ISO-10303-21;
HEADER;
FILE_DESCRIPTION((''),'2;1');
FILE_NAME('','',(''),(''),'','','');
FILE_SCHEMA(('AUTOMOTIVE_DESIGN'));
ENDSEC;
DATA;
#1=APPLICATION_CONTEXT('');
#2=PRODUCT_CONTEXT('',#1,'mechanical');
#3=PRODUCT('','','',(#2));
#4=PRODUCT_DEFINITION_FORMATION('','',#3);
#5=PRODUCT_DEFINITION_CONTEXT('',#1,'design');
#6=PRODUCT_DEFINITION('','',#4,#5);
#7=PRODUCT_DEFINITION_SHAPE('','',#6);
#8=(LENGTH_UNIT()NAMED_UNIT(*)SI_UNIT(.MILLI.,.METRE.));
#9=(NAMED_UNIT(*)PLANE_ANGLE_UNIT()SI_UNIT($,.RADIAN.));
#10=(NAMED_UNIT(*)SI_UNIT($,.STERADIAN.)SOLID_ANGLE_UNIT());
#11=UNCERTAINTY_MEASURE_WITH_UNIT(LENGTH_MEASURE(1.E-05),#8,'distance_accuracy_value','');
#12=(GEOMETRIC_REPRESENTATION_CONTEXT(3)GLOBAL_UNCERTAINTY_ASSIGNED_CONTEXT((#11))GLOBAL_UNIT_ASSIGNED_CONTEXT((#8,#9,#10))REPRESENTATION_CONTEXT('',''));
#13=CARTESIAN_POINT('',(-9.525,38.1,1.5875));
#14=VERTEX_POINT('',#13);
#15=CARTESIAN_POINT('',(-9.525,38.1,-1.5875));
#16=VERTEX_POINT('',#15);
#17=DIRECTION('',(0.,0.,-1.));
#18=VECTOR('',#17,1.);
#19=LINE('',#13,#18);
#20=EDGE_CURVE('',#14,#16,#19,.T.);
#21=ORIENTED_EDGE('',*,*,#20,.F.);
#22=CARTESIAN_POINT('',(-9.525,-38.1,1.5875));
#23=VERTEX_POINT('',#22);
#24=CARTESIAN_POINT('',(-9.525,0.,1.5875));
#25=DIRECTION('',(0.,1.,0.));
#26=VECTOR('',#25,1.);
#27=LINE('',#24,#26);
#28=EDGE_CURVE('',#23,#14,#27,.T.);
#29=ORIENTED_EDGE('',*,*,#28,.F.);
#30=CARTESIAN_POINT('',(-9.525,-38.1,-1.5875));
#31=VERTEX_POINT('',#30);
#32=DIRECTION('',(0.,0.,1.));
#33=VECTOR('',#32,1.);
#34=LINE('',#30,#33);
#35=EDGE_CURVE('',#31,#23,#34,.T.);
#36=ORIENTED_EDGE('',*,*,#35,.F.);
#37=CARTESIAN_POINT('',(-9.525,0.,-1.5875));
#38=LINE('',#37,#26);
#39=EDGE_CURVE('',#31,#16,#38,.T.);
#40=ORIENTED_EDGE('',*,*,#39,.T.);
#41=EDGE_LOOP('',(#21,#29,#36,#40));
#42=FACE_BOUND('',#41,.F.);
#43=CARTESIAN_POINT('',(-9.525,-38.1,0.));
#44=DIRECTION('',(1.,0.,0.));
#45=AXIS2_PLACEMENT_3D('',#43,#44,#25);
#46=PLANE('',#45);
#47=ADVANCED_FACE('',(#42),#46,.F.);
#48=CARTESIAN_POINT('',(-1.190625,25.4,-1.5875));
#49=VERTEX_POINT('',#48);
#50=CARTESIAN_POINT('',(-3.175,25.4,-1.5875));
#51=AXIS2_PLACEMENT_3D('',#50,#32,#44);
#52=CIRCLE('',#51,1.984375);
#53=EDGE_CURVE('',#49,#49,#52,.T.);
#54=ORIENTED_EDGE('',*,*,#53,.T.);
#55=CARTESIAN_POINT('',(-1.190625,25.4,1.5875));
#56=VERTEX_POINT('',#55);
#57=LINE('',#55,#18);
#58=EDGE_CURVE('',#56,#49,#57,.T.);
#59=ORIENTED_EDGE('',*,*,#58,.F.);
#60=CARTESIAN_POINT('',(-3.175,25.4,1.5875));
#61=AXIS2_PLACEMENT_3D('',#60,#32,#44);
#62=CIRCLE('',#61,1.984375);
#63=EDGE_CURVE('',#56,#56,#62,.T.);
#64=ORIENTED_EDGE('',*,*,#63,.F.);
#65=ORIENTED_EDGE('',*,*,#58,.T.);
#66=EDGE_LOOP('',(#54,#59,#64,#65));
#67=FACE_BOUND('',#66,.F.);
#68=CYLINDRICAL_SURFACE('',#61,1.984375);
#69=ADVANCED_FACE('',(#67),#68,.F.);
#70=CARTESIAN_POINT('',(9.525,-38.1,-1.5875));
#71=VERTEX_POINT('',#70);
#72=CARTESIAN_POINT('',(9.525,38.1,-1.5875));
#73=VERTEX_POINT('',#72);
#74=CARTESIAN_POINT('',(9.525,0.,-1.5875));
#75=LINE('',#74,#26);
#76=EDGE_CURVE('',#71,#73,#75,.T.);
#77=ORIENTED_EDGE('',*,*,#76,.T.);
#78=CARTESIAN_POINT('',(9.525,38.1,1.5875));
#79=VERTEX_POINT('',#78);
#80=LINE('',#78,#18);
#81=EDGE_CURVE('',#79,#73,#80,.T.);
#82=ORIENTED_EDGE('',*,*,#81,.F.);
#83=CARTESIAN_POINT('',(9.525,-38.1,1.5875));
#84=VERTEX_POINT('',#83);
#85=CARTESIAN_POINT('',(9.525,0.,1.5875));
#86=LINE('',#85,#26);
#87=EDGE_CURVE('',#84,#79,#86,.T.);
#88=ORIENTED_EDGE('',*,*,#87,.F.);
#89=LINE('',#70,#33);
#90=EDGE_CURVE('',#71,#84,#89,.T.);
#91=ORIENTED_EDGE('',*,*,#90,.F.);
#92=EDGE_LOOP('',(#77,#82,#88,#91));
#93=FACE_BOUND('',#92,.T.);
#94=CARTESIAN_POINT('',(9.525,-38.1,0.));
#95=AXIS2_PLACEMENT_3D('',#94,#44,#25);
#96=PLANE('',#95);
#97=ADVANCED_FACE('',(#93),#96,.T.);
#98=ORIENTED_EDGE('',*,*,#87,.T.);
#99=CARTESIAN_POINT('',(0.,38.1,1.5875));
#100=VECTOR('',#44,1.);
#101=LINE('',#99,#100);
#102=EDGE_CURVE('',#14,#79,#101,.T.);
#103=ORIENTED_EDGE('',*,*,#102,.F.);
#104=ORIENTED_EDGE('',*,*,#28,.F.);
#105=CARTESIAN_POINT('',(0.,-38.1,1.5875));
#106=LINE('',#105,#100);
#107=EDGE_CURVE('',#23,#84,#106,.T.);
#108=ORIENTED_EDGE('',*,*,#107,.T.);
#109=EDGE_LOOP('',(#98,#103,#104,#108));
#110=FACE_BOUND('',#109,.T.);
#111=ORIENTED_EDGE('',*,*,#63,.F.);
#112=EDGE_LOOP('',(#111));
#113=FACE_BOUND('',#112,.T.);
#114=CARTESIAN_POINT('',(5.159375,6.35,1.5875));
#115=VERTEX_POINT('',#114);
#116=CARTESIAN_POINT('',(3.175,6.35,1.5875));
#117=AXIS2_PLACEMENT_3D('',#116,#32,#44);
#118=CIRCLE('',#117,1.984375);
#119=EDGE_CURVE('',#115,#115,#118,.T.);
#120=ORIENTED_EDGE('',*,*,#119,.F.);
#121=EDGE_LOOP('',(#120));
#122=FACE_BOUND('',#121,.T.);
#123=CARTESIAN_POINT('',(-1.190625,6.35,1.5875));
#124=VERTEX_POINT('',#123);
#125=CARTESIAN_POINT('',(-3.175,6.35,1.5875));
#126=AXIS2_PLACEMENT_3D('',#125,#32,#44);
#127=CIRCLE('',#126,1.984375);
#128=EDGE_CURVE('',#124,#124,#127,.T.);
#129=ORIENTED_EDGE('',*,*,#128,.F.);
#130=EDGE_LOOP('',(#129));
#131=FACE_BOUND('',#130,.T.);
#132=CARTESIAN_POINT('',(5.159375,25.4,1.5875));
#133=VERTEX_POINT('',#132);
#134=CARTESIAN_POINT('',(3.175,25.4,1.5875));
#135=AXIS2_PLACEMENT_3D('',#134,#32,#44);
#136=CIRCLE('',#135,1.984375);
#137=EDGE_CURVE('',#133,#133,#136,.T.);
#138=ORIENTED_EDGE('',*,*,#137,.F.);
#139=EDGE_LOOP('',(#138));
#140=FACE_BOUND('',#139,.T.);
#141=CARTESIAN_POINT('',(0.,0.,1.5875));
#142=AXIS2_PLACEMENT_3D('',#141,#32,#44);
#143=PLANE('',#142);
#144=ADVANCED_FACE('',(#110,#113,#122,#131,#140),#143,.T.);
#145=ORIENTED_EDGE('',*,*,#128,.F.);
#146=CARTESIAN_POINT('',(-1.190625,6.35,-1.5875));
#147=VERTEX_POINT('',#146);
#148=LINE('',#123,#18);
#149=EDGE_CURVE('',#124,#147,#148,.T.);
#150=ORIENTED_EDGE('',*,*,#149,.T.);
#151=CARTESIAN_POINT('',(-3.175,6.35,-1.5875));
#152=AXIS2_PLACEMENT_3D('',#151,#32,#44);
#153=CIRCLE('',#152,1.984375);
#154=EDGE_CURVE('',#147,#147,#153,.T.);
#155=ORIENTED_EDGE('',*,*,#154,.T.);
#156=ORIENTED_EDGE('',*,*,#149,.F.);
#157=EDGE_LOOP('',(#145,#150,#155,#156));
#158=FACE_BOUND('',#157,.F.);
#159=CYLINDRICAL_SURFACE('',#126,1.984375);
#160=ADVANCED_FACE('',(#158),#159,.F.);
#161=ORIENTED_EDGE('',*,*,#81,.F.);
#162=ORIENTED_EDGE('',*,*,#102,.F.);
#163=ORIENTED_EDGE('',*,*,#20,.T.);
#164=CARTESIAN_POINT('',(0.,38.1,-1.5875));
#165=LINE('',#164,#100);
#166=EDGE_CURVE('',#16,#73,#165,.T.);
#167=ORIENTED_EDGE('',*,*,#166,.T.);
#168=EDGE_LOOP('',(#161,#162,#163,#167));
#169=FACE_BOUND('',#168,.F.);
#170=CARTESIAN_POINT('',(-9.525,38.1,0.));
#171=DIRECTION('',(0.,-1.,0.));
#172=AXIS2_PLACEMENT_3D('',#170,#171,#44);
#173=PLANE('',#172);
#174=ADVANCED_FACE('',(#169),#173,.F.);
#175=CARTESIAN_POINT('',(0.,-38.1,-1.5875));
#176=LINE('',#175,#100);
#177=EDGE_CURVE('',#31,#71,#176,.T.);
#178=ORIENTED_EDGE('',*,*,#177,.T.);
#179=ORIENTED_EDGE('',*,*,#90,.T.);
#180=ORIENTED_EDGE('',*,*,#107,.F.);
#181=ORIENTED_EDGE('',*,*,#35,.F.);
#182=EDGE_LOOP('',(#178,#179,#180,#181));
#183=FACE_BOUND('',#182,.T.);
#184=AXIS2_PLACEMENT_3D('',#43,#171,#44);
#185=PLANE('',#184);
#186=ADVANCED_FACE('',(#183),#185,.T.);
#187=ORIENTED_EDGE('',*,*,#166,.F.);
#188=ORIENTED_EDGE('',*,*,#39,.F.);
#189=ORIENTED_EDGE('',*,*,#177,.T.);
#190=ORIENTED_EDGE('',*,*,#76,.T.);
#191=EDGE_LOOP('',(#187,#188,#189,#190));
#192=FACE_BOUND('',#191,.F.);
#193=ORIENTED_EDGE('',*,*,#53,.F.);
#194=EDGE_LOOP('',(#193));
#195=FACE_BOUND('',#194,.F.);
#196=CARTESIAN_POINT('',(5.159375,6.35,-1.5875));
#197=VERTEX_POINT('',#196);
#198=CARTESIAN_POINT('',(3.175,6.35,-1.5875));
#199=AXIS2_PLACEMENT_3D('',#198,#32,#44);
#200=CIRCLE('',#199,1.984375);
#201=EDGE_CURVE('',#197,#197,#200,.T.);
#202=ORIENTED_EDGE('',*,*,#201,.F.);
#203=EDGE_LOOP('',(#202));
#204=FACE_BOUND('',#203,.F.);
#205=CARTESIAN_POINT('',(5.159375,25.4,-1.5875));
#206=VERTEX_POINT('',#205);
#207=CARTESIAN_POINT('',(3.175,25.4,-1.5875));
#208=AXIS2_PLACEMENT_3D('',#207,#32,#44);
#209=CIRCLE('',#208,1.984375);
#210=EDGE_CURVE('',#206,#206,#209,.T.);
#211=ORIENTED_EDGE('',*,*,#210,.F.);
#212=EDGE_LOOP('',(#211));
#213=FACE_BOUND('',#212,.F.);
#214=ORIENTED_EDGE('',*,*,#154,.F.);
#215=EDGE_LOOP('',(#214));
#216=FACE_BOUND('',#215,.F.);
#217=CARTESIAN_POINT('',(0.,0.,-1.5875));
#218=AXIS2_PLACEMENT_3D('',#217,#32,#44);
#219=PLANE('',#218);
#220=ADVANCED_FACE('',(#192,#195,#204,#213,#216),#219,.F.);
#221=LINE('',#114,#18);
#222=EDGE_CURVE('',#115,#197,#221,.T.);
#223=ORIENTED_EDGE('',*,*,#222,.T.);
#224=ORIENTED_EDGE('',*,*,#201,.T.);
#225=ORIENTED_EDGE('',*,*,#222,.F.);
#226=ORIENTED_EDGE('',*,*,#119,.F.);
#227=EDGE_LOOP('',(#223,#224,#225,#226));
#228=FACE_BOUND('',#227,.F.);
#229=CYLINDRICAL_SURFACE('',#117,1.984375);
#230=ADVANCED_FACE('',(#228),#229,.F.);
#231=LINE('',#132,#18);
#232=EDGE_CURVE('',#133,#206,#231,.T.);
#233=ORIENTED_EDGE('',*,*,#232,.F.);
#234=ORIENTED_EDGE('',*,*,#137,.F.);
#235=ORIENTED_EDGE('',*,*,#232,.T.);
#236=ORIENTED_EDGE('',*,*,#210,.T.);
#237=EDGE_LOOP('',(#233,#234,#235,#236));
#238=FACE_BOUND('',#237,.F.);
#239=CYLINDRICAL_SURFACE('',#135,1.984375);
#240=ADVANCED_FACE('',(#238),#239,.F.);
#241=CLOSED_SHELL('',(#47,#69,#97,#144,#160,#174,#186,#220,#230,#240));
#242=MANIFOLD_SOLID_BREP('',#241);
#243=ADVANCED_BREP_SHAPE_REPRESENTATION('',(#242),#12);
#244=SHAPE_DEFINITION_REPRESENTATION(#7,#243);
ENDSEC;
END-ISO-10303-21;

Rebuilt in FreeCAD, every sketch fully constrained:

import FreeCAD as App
import Part
import Sketcher
Q = App.Units.Quantity

doc = App.newDocument("Part")
body = doc.addObject("PartDesign::Body", "Body")

# Sketch on XY plane
sketch1 = body.newObject("Sketcher::SketchObject", "Sketch")
sketch1.AttachmentSupport = (doc.getObject("XY_Plane"), [""])
sketch1.MapMode = "FlatFace"
sketch1.addGeometry(Part.LineSegment(App.Vector(-9.525, 38.1, 0), App.Vector(-9.525, -38.1, 0)), False)
sketch1.addGeometry(Part.LineSegment(App.Vector(-9.525, -38.1, 0), App.Vector(9.525, -38.1, 0)), False)
sketch1.addGeometry(Part.LineSegment(App.Vector(9.525, -38.1, 0), App.Vector(9.525, 38.1, 0)), False)
sketch1.addGeometry(Part.LineSegment(App.Vector(9.525, 38.1, 0), App.Vector(-9.525, 38.1, 0)), False)
sketch1.addConstraint(Sketcher.Constraint("Coincident", 0, 2, 1, 1))
sketch1.addConstraint(Sketcher.Constraint("Coincident", 1, 2, 2, 1))
sketch1.addConstraint(Sketcher.Constraint("Coincident", 2, 2, 3, 1))
sketch1.addConstraint(Sketcher.Constraint("Coincident", 3, 2, 0, 1))
sketch1.addConstraint(Sketcher.Constraint("Vertical", 0))
sketch1.addConstraint(Sketcher.Constraint("Horizontal", 1))
sketch1.addConstraint(Sketcher.Constraint("Vertical", 2))
sketch1.addConstraint(Sketcher.Constraint("Horizontal", 3))
sketch1.addConstraint(Sketcher.Constraint("Symmetric", 0, 2, 2, 2, -1, 1))
sketch1.addConstraint(Sketcher.Constraint("DistanceY", 0, 2, 0, 1, Q("3 in")))
sketch1.addConstraint(Sketcher.Constraint("DistanceX", 1, 1, 1, 2, Q("0.75 in")))
pad1 = body.newObject("PartDesign::Pad", "Pad")
pad1.Profile = sketch1
pad1.Length = Q("0.125 in")
pad1.Midplane = True

# Sketch on XY plane
sketch2 = body.newObject("Sketcher::SketchObject", "Sketch001")
sketch2.AttachmentSupport = (doc.getObject("XY_Plane"), [""])
sketch2.MapMode = "FlatFace"
sketch2.AttachmentOffset = App.Placement(App.Vector(0, 0, 0.0625 * 25.4), App.Rotation())
sketch2.addGeometry(Part.Circle(App.Vector(3.175, 25.4, 0), App.Vector(0, 0, 1), 1.984375), False)
sketch2.addGeometry(Part.Circle(App.Vector(-3.175, 25.4, 0), App.Vector(0, 0, 1), 1.984375), False)
sketch2.addGeometry(Part.Circle(App.Vector(-3.175, 6.35, 0), App.Vector(0, 0, 1), 1.984375), False)
sketch2.addGeometry(Part.Circle(App.Vector(3.175, 6.35, 0), App.Vector(0, 0, 1), 1.984375), False)
sketch2.addConstraint(Sketcher.Constraint("Equal", 0, 1))
sketch2.addConstraint(Sketcher.Constraint("Equal", 1, 2))
sketch2.addConstraint(Sketcher.Constraint("Equal", 2, 3))
sketch2.addConstraint(Sketcher.Constraint("Symmetric", 0, 3, 1, 3, -2))
sketch2.addConstraint(Sketcher.Constraint("Symmetric", 2, 3, 3, 3, -2))
sketch2.addConstraint(Sketcher.Constraint("Vertical", 1, 3, 2, 3))
sketch2.addConstraint(Sketcher.Constraint("Diameter", 0, Q("0.15625 in")))
sketch2.addConstraint(Sketcher.Constraint("DistanceY", -1, 1, 0, 3, Q("1 in")))
sketch2.addConstraint(Sketcher.Constraint("DistanceY", -1, 1, 2, 3, Q("0.25 in")))
sketch2.addConstraint(Sketcher.Constraint("DistanceX", 1, 3, 0, 3, Q("0.25 in")))
pocket1 = body.newObject("PartDesign::Pocket", "Pocket")
pocket1.Profile = sketch2
pocket1.Type = "ThroughAll"

doc.recompute()
